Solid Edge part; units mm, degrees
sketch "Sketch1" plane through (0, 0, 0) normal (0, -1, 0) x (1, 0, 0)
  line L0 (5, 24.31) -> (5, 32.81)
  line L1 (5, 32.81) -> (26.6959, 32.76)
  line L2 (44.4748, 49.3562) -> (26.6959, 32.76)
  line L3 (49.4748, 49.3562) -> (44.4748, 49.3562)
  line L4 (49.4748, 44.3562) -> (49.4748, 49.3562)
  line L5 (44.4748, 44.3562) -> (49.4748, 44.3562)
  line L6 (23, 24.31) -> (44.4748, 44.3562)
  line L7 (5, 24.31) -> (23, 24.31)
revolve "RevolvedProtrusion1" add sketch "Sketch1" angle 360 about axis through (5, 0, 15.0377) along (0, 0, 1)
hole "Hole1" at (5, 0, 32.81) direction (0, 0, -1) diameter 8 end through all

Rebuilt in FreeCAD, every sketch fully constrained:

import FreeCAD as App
import Part
import Sketcher

V = App.Vector
Q = App.Units.Quantity


def add_polygon(sketch, points):
    """Adds a closed chain of lines whose ends are joined by coincident constraints."""
    first, n = sketch.GeometryCount, len(points)
    for a, b in zip(points, points[1:] + points[:1]):
        sketch.addGeometry(Part.LineSegment(App.Vector(*a, 0), App.Vector(*b, 0)), False)
    for i in range(n):
        sketch.addConstraint(Sketcher.Constraint("Coincident", first + i, 2, first + (i + 1) % n, 1))

doc = App.newDocument("Part")
params = doc.addObject("Spreadsheet::Sheet", "Params")
for row, (alias, value) in enumerate([
    ("sketch1_width", "18 mm"),
    ("sketch1_width2", "5 mm"),
    ("sketch1_height", "8.5 mm"),
    ("revolution_angle", "360 deg"),
    ("sketch2_diameter", "8 mm"),
    ("hole_diameter", "8 mm"),
], start=1):
    params.set(f"A{row}", alias)
    params.set(f"B{row}", "=" + value)
    params.setAlias(f"B{row}", alias)

body = doc.addObject("PartDesign::Body", "Body")

# Sketch on XZ plane
sketch1 = body.newObject("Sketcher::SketchObject", "Sketch")
sketch1.AttachmentSupport = (doc.getObject("XZ_Plane"), [""])
sketch1.MapMode = "FlatFace"
add_polygon(sketch1, [(5, 32.81), (5, 24.31), (23, 24.31), (44.4748, 44.3562), (49.4748, 44.3562), (49.4748, 49.3562), (44.4748, 49.3562), (26.6959, 32.76)])  # lines 0-7
sketch1.addGeometry(Part.LineSegment(V(5, 24.31, 0), V(5, 49.3562, 0)), True)  # axis
sketch1.addConstraint(Sketcher.Constraint("Vertical", 0))
sketch1.addConstraint(Sketcher.Constraint("Horizontal", 1))
sketch1.addConstraint(Sketcher.Constraint("Horizontal", 3))
sketch1.addConstraint(Sketcher.Constraint("Vertical", 4))
sketch1.addConstraint(Sketcher.Constraint("Horizontal", 5))
sketch1.addConstraint(Sketcher.Constraint("Vertical", 8))
sketch1.addConstraint(Sketcher.Constraint("Coincident", 8, 1, 0, 2))
sketch1.addConstraint(Sketcher.Constraint("Parallel", 2, 6))
sketch1.addConstraint(Sketcher.Constraint("Horizontal", 5, 2, 8, 2))
sketch1.addConstraint(Sketcher.Constraint("Vertical", 2, 2, 5, 2))
sketch1.addConstraint(Sketcher.Constraint("Equal", 5, 4))
sketch1.addConstraint(Sketcher.Constraint("DistanceX", 1, 1, 1, 2, Q("18 mm")))
sketch1.addConstraint(Sketcher.Constraint("DistanceX", 3, 1, 3, 2, Q("5 mm")))
sketch1.addConstraint(Sketcher.Constraint("DistanceY", 0, 2, 0, 1, Q("8.5 mm")))
sketch1.addConstraint(Sketcher.Constraint("DistanceX", -1, 1, 0, 2, Q("5 mm")))
sketch1.addConstraint(Sketcher.Constraint("Angle", 2, Q("43.0294 deg")))
sketch1.addConstraint(Sketcher.Constraint("DistanceY", -1, 1, 0, 2, Q("24.31 mm")))
sketch1.addConstraint(Sketcher.Constraint("DistanceY", -1, 1, 6, 2, Q("32.76 mm")))
sketch1.addConstraint(Sketcher.Constraint("DistanceY", 8, 1, 8, 2, Q("25.0462 mm")))
sketch1.setExpression("Constraints[19]", "Params.sketch1_width")
sketch1.setExpression("Constraints[20]", "Params.sketch1_width2")
sketch1.setExpression("Constraints[21]", "Params.sketch1_height")
revolution = body.newObject("PartDesign::Revolution", "Revolution")
revolution.Profile = sketch1
revolution.ReferenceAxis = (sketch1, ["Axis0"])
revolution.setExpression("Angle", "Params.revolution_angle")

# Sketch on XY plane
sketch2 = body.newObject("Sketcher::SketchObject", "Sketch001")
sketch2.AttachmentSupport = (doc.getObject("XY_Plane"), [""])
sketch2.MapMode = "FlatFace"
sketch2.AttachmentOffset = App.Placement(V(0, 0, 32.81), App.Rotation())
sketch2.addGeometry(Part.Circle(V(5, 0, 0), V(0, 0, 1), 4), False)
sketch2.addConstraint(Sketcher.Constraint("PointOnObject", 0, 3, -1))
sketch2.addConstraint(Sketcher.Constraint("Diameter", 0, Q("8 mm")))
sketch2.addConstraint(Sketcher.Constraint("DistanceX", -1, 1, 0, 3, Q("5 mm")))
sketch2.setExpression("Constraints[1]", "Params.sketch2_diameter")
doc.recompute()
hole = body.newObject("PartDesign::Hole", "Hole")
hole.Profile = sketch2
hole.ThreadType = "None"
hole.setExpression("Diameter", "Params.hole_diameter")
hole.DepthType = "ThroughAll"

doc.recompute()
